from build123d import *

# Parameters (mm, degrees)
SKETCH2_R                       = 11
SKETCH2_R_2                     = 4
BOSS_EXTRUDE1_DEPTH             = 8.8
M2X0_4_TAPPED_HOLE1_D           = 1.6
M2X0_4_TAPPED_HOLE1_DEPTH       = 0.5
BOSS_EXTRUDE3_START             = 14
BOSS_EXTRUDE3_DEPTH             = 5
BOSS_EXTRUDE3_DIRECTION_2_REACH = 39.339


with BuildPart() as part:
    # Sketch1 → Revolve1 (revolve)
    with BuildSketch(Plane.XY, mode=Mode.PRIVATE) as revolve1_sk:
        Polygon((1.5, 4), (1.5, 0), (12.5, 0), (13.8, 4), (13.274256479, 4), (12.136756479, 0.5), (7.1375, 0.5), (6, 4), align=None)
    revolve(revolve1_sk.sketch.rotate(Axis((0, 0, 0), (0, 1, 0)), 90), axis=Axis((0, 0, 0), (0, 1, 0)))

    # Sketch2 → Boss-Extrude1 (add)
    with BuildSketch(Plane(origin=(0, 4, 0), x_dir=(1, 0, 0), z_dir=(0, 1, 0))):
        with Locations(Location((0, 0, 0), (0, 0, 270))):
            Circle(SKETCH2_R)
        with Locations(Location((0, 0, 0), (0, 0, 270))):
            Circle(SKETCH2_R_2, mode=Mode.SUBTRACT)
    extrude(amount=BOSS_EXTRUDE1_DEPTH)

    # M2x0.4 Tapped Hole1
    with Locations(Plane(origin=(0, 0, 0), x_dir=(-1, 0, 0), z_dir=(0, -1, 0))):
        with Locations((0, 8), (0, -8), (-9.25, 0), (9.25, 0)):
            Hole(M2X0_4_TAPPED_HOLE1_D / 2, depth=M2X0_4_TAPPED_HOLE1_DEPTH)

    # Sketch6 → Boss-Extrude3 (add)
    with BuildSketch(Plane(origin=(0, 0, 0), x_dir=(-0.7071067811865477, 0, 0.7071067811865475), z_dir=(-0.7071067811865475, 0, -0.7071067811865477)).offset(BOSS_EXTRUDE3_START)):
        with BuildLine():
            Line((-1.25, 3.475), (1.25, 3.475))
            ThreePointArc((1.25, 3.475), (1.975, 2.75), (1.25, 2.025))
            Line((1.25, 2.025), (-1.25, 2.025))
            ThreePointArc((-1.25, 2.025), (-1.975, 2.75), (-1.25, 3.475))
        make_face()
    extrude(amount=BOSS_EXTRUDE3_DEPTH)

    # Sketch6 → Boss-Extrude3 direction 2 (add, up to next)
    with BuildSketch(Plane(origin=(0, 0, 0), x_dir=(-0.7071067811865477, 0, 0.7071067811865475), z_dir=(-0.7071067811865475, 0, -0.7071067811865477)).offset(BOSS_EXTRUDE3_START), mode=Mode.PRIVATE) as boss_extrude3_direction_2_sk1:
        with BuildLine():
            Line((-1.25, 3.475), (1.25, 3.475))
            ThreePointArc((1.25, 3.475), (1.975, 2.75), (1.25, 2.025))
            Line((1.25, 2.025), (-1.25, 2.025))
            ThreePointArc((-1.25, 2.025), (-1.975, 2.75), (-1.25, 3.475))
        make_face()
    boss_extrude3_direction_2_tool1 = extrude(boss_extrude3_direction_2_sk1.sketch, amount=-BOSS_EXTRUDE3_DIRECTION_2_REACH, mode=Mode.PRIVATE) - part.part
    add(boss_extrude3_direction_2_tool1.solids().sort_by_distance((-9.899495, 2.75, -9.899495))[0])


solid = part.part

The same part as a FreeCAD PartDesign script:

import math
import FreeCAD as App
import Part
import Sketcher
from FreeCAD import Vector


def add_polygon(sketch, points):
    """Adds a closed chain of lines whose ends are joined by coincident constraints."""
    first, n = sketch.GeometryCount, len(points)
    for a, b in zip(points, points[1:] + points[:1]):
        sketch.addGeometry(Part.LineSegment(App.Vector(*a, 0), App.Vector(*b, 0)), False)
    for i in range(n):
        sketch.addConstraint(Sketcher.Constraint("Coincident", first + i, 2, first + (i + 1) % n, 1))

doc = App.newDocument("Part")
body = doc.addObject("PartDesign::Body", "Body")
body.AllowCompound = True

# Sketch on XY plane
sketch1 = body.newObject("Sketcher::SketchObject", "Sketch")
sketch1.AttachmentSupport = (doc.getObject("XY_Plane"), [""])
sketch1.MapMode = "FlatFace"
add_polygon(sketch1, [(1.5, 4), (1.5, 0), (12.5, 0), (13.8, 4), (13.3, 4), (12.1, 0.5), (7.1, 0.5), (6, 4)])  # lines 0-7
sketch1.addConstraint(Sketcher.Constraint("Vertical", 0))
sketch1.addConstraint(Sketcher.Constraint("Horizontal", 1))
sketch1.addConstraint(Sketcher.Constraint("Horizontal", 3))
sketch1.addConstraint(Sketcher.Constraint("Horizontal", 5))
sketch1.addConstraint(Sketcher.Constraint("Horizontal", 7))
sketch1.addConstraint(Sketcher.Constraint("PointOnObject", 0, 2, -1))
sketch1.addConstraint(Sketcher.Constraint("Parallel", 2, 4))
sketch1.addConstraint(Sketcher.Constraint("Horizontal", 3, 2, 6, 2))
sketch1.addConstraint(Sketcher.Constraint("Equal", 4, 6))
sketch1.addConstraint(Sketcher.Constraint("DistanceX", 1, 1, 1, 2, 11.0))
sketch1.addConstraint(Sketcher.Constraint("DistanceY", 0, 2, 0, 1, 4.0))
sketch1.addConstraint(Sketcher.Constraint("DistanceX", 7, 2, 7, 1, 4.5))
sketch1.addConstraint(Sketcher.Constraint("DistanceX", -1, 1, 6, 2, 6.0))
sketch1.addConstraint(Sketcher.Constraint("DistanceX", -1, 1, 2, 2, 13.8))
sketch1.addConstraint(Sketcher.Constraint("DistanceY", -1, 1, 4, 2, 0.5))
sketch1.addConstraint(Sketcher.Constraint("DistanceX", 3, 2, 3, 1, 0.525744))
revolution = body.newObject("PartDesign::Revolution", "Revolution")
revolution.Profile = sketch1
revolution.ReferenceAxis = (sketch1, ["V_Axis"])
revolution.Angle = 360

# Sketch on XZ plane
sketch2 = body.newObject("Sketcher::SketchObject", "Sketch001")
sketch2.AttachmentSupport = (doc.getObject("XZ_Plane"), [""])
sketch2.MapMode = "FlatFace"
sketch2.AttachmentOffset = App.Placement(Vector(0, 0, -4), App.Rotation())
sketch2.addGeometry(Part.Circle(Vector(0, 0, 0), Vector(0, 0, 1), 11), False)
sketch2.addGeometry(Part.Circle(Vector(0, 0, 0), Vector(0, 0, 1), 4), False)
sketch2.addConstraint(Sketcher.Constraint("Coincident", 0, 3, -1, 1))
sketch2.addConstraint(Sketcher.Constraint("Coincident", 1, 3, -1, 1))
sketch2.addConstraint(Sketcher.Constraint("Diameter", 0, 22.0))
sketch2.addConstraint(Sketcher.Constraint("Diameter", 1, 8.0))
pad1 = body.newObject("PartDesign::Pad", "Pad")
pad1.Profile = sketch2
pad1.Length = 8.8
pad1.Reversed = True

# Sketch on XZ plane
sketch3 = body.newObject("Sketcher::SketchObject", "Sketch002")
sketch3.AttachmentSupport = (doc.getObject("XZ_Plane"), [""])
sketch3.MapMode = "FlatFace"
sketch3.addGeometry(Part.Circle(Vector(0, -8, 0), Vector(0, 0, 1), 0.8), False)
sketch3.addGeometry(Part.Circle(Vector(0, 8, 0), Vector(0, 0, 1), 0.8), False)
sketch3.addGeometry(Part.Circle(Vector(9.2, 0, 0), Vector(0, 0, 1), 0.8), False)
sketch3.addGeometry(Part.Circle(Vector(-9.2, 0, 0), Vector(0, 0, 1), 0.8), False)
sketch3.addConstraint(Sketcher.Constraint("Equal", 0, 1))
sketch3.addConstraint(Sketcher.Constraint("Equal", 1, 2))
sketch3.addConstraint(Sketcher.Constraint("Equal", 2, 3))
sketch3.addConstraint(Sketcher.Constraint("Symmetric", 0, 3, 1, 3, -1, 1))
sketch3.addConstraint(Sketcher.Constraint("Symmetric", 2, 3, 3, 3, -1, 1))
sketch3.addConstraint(Sketcher.Constraint("PointOnObject", 0, 3, -2))
sketch3.addConstraint(Sketcher.Constraint("PointOnObject", 2, 3, -1))
sketch3.addConstraint(Sketcher.Constraint("Diameter", 0, 1.6))
sketch3.addConstraint(Sketcher.Constraint("DistanceY", 0, 3, -1, 1, 8.0))
sketch3.addConstraint(Sketcher.Constraint("DistanceX", 3, 3, 2, 3, 18.5))
doc.recompute()
hole = body.newObject("PartDesign::Hole", "Hole")
hole.Profile = sketch3
hole.ThreadType = "None"
hole.Diameter = 1.6
hole.DepthType = "Dimension"
hole.Depth = 0.5
hole.DrillPoint = "Flat"

# Sketch on an angled plane
sketch4 = body.newObject("Sketcher::SketchObject", "Sketch003")
sketch4.Placement = App.Placement(Vector(-9.899495, 0, -9.899495), App.Rotation(Vector(-0.707106781, 0, 0.707106781), Vector(0, 0.999999999, 0), Vector(-0.707106781, 0, -0.707106781), "ZXY"))
sketch4.addGeometry(Part.LineSegment(Vector(1.2, 3.5, 0), Vector(-1.2, 3.5, 0)), False)
sketch4.addGeometry(Part.ArcOfCircle(Part.Circle(Vector(-1.2, 2.7, 0), Vector(0, 0, 1), 0.7), math.radians(90), math.radians(270)), False)
sketch4.addGeometry(Part.LineSegment(Vector(-1.2, 2, 0), Vector(1.2, 2, 0)), False)
sketch4.addGeometry(Part.ArcOfCircle(Part.Circle(Vector(1.2, 2.7, 0), Vector(0, 0, 1), 0.7), math.radians(-90), math.radians(90)), False)
sketch4.addConstraint(Sketcher.Constraint("Tangent", 0, 2, 1, 1))
sketch4.addConstraint(Sketcher.Constraint("Tangent", 1, 2, 2, 1))
sketch4.addConstraint(Sketcher.Constraint("Tangent", 2, 2, 3, 1))
sketch4.addConstraint(Sketcher.Constraint("Tangent", 3, 2, 0, 1))
sketch4.addConstraint(Sketcher.Constraint("Horizontal", 0))
sketch4.addConstraint(Sketcher.Constraint("Horizontal", 2))
sketch4.addConstraint(Sketcher.Constraint("DistanceX", 0, 2, 0, 1, 2.5))
sketch4.addConstraint(Sketcher.Constraint("Radius", 1, 0.725))
sketch4.addConstraint(Sketcher.Constraint("DistanceX", 1, 3, -1, 1, 1.25))
sketch4.addConstraint(Sketcher.Constraint("DistanceY", -1, 1, 1, 3, 2.75))
pad2 = body.newObject("PartDesign::Pad", "Pad001")
pad2.Profile = sketch4
pad2.Length = 5

# Sketch on an angled plane
sketch5 = body.newObject("Sketcher::SketchObject", "Sketch004")
sketch5.Placement = App.Placement(Vector(-9.899495, 0, -9.899495), App.Rotation(Vector(-0.707106781, 0, 0.707106781), Vector(0, 0.999999999, 0), Vector(-0.707106781, 0, -0.707106781), "ZXY"))
sketch5.addGeometry(Part.LineSegment(Vector(1.2, 3.5, 0), Vector(-1.2, 3.5, 0)), False)
sketch5.addGeometry(Part.ArcOfCircle(Part.Circle(Vector(-1.2, 2.7, 0), Vector(0, 0, 1), 0.7), math.radians(90), math.radians(270)), False)
sketch5.addGeometry(Part.LineSegment(Vector(-1.2, 2, 0), Vector(1.2, 2, 0)), False)
sketch5.addGeometry(Part.ArcOfCircle(Part.Circle(Vector(1.2, 2.7, 0), Vector(0, 0, 1), 0.7), math.radians(-90), math.radians(90)), False)
sketch5.addConstraint(Sketcher.Constraint("Tangent", 0, 2, 1, 1))
sketch5.addConstraint(Sketcher.Constraint("Tangent", 1, 2, 2, 1))
sketch5.addConstraint(Sketcher.Constraint("Tangent", 2, 2, 3, 1))
sketch5.addConstraint(Sketcher.Constraint("Tangent", 3, 2, 0, 1))
sketch5.addConstraint(Sketcher.Constraint("Horizontal", 0))
sketch5.addConstraint(Sketcher.Constraint("Horizontal", 2))
sketch5.addConstraint(Sketcher.Constraint("DistanceX", 0, 2, 0, 1, 2.5))
sketch5.addConstraint(Sketcher.Constraint("Radius", 1, 0.725))
sketch5.addConstraint(Sketcher.Constraint("DistanceX", 1, 3, -1, 1, 1.25))
sketch5.addConstraint(Sketcher.Constraint("DistanceY", -1, 1, 1, 3, 2.75))
pad3 = body.newObject("PartDesign::Pad", "Pad002")
pad3.Profile = sketch5
pad3.Type = "UpToFirst"
pad3.Reversed = True

doc.recompute()
